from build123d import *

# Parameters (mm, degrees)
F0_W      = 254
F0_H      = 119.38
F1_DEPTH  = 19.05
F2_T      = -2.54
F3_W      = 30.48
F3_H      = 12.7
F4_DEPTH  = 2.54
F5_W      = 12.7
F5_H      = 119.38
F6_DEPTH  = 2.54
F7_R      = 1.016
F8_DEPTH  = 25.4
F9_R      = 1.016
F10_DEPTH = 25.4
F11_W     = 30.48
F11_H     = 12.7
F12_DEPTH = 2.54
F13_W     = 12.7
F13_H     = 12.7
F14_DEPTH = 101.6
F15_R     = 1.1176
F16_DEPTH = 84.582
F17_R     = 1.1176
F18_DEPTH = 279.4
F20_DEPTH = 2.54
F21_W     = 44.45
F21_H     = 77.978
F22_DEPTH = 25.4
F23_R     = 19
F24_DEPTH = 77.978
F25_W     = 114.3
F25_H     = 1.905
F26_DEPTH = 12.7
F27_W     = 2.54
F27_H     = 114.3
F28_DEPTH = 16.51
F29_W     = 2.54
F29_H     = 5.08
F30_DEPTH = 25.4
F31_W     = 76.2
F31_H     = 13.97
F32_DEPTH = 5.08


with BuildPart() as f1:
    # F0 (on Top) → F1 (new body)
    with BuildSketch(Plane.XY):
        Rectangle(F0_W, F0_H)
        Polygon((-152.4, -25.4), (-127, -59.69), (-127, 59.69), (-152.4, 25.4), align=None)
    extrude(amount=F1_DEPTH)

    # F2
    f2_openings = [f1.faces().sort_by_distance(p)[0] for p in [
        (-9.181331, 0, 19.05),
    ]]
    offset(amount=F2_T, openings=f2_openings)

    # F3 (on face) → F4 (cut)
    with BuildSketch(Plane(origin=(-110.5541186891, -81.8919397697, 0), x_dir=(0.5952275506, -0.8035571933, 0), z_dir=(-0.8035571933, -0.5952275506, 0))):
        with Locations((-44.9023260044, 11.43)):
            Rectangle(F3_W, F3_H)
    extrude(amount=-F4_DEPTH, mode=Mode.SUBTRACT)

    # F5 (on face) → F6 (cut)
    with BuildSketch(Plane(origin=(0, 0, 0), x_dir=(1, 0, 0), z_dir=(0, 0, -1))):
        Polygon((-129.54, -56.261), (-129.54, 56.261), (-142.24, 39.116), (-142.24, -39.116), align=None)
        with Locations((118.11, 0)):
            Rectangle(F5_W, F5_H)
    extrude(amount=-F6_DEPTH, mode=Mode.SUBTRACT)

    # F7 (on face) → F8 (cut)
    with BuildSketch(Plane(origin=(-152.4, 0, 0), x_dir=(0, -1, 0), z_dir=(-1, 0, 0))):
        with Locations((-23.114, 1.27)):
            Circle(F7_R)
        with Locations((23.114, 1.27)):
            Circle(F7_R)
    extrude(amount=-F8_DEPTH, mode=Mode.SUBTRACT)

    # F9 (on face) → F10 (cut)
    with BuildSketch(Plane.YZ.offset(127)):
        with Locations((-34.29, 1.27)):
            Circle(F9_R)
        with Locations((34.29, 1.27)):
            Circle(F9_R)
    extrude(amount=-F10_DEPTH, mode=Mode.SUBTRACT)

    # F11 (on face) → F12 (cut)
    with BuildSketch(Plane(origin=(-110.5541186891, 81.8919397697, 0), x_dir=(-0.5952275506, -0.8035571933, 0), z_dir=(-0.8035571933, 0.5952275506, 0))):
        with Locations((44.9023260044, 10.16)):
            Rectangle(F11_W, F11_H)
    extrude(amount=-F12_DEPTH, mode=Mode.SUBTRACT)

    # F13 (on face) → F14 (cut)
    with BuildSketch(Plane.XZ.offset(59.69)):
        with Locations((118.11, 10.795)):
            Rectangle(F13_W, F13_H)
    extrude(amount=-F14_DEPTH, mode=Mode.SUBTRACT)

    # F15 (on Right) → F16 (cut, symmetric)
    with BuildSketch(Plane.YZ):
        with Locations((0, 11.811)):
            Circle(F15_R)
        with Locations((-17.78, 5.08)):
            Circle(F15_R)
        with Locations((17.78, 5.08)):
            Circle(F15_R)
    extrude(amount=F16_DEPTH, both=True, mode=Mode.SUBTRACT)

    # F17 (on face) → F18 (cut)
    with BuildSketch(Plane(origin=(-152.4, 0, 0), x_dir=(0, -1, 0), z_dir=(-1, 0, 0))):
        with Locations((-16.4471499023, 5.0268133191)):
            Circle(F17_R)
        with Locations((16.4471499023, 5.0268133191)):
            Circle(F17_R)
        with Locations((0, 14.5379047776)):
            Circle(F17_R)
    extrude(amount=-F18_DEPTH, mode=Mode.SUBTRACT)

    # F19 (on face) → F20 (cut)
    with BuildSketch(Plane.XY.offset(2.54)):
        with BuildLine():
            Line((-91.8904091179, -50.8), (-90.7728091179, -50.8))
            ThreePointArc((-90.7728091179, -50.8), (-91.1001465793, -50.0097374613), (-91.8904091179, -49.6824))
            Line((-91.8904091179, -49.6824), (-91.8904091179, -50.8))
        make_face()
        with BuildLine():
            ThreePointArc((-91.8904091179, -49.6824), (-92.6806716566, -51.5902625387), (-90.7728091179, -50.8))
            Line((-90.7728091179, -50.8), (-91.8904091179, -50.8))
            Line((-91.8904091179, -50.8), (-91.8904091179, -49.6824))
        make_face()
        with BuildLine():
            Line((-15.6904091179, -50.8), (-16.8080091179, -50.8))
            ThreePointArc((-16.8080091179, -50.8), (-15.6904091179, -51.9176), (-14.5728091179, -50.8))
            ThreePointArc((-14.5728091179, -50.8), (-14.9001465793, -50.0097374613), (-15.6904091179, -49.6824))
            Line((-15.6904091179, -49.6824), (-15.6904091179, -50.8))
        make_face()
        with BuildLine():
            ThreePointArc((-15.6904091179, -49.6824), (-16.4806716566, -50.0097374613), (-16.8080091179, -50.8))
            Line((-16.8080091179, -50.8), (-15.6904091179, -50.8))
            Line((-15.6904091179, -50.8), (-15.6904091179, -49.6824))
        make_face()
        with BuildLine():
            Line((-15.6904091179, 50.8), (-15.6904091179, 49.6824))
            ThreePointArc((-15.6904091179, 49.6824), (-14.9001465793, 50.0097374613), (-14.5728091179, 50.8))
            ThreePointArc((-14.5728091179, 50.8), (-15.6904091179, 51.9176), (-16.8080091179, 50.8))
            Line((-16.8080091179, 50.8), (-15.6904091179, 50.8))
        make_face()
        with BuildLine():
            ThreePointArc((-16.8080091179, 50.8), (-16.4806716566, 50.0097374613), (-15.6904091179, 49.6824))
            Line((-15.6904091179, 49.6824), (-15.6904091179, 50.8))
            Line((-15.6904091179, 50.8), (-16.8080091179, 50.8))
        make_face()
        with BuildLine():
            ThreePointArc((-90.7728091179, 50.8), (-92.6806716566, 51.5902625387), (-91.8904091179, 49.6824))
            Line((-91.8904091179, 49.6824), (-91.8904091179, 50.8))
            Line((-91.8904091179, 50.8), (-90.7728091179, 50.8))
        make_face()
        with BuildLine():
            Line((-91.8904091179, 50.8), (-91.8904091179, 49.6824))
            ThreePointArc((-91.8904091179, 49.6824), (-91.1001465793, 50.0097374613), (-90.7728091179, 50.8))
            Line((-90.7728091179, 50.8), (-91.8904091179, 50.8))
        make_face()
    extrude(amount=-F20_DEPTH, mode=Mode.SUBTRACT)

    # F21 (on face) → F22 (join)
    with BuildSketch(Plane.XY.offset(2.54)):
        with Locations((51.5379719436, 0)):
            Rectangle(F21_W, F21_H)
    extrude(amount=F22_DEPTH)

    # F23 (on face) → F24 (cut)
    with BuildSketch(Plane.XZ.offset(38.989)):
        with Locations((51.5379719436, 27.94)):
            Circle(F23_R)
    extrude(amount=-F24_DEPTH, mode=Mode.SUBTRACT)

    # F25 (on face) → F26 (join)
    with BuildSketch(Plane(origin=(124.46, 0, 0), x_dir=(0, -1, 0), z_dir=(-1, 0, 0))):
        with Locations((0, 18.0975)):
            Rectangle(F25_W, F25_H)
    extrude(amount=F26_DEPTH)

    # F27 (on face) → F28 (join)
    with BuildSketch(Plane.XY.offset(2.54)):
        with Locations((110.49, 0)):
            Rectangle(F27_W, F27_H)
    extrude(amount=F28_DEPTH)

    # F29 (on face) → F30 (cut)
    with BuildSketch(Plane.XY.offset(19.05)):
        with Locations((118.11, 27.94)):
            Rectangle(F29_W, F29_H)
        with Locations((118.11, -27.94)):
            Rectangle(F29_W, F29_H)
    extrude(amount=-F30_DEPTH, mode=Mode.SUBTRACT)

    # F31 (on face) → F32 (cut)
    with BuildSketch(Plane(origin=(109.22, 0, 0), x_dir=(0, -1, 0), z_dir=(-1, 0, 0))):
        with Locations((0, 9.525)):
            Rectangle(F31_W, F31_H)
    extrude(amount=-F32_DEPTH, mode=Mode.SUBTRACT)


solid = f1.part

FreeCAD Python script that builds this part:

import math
import FreeCAD as App
import Part
import Sketcher
from FreeCAD import Vector
Q = App.Units.Quantity


def faces_at(feature, points):
    """Names of the faces that lie closest to the given points."""
    faces = feature.Shape.Faces
    near = lambda p: min(range(len(faces)), key=lambda i: faces[i].distToShape(Part.Vertex(*p))[0])
    return sorted({f"Face{near(p) + 1}" for p in points})

doc = App.newDocument("Part")
params = doc.addObject("Spreadsheet::Sheet", "Params")
for row, (alias, value) in enumerate([
    ("sketch1_width", "10 in"),
    ("sketch1_height", "2 in"),
    ("sketch1_height2", "4.7 in"),
    ("pad1_length", "0.75 in"),
    ("thickness_wall", "0.1 in"),
    ("sketch2_width", "1.2 in"),
    ("sketch2_height", "0.5 in"),
    ("pocket1_length", "0.1 in"),
    ("sketch3_width", "0.5 in"),
    ("sketch3_height", "4.7 in"),
    ("sketch3_height2", "4.43 in"),
    ("sketch3_height3", "3.08 in"),
    ("pocket2_length", "0.1 in"),
    ("sketch4_diameter", "0.08 in"),
    ("pocket3_length", "1 in"),
    ("sketch5_diameter", "0.08 in"),
    ("pocket4_length", "1 in"),
    ("sketch6_width", "1.2 in"),
    ("sketch6_height", "0.5 in"),
    ("pocket5_length", "0.1 in"),
    ("sketch7_width", "0.5 in"),
    ("pocket6_length", "4 in"),
    ("sketch8_diameter", "0.088 in"),
    ("pocket7_length", "6.66 in"),
    ("sketch9_diameter", "0.088 in"),
    ("pocket8_length", "11 in"),
    ("sketch10_radius", "0.044 in"),
    ("pocket9_length", "0.1 in"),
    ("sketch11_width", "1.75 in"),
    ("sketch11_height", "3.07 in"),
    ("pad2_length", "1 in"),
    ("pocket10_length", "3.07 in"),
    ("sketch13_width", "4.5 in"),
    ("sketch13_height", "0.075 in"),
    ("pad3_length", "0.5 in"),
    ("sketch14_width", "0.1 in"),
    ("sketch14_height", "4.5 in"),
    ("pad4_length", "0.65 in"),
    ("sketch15_width", "0.1 in"),
    ("sketch15_height", "0.2 in"),
    ("pocket11_length", "1 in"),
    ("sketch16_width", "3 in"),
    ("sketch16_height", "0.55 in"),
    ("pocket12_length", "0.2 in"),
], start=1):
    params.set(f"A{row}", alias)
    params.set(f"B{row}", "=" + value)
    params.setAlias(f"B{row}", alias)

body = doc.addObject("PartDesign::Body", "Body")

# Sketch on XY plane
sketch1 = doc.addObject("Sketcher::SketchObject", "Sketch")
body.addObject(sketch1)
sketch1.AttachmentSupport = (doc.XY_Plane, [""])
sketch1.MapMode = "FlatFace"
sketch1.addGeometry([
    Part.LineSegment(Vector(-127, -59.69, 0), Vector(127, -59.69, 0)),  # 0
    Part.LineSegment(Vector(127, -59.69, 0), Vector(127, 59.69, 0)),  # 1
    Part.LineSegment(Vector(127, 59.69, 0), Vector(-127, 59.69, 0)),  # 2
    Part.LineSegment(Vector(-127, 59.69, 0), Vector(-152.4, 25.4, 0)),  # 3
    Part.LineSegment(Vector(-152.4, 25.4, 0), Vector(-152.4, -25.4, 0)),  # 4
    Part.LineSegment(Vector(-152.4, -25.4, 0), Vector(-127, -59.69, 0)),  # 5
], False)
sketch1.addConstraint([
    Sketcher.Constraint("Coincident", 0, 2, 1, 1),
    Sketcher.Constraint("Coincident", 1, 2, 2, 1),
    Sketcher.Constraint("Coincident", 2, 2, 3, 1),
    Sketcher.Constraint("Coincident", 3, 2, 4, 1),
    Sketcher.Constraint("Coincident", 4, 2, 5, 1),
    Sketcher.Constraint("Coincident", 5, 2, 0, 1),
    Sketcher.Constraint("Horizontal", 0),
    Sketcher.Constraint("Vertical", 1),
    Sketcher.Constraint("Horizontal", 2),
    Sketcher.Constraint("Vertical", 4),
    Sketcher.Constraint("Symmetric", 0, 2, 2, 2, -1, 1),
    Sketcher.Constraint("Vertical", 2, 2, 5, 2),
    Sketcher.Constraint("Equal", 3, 5),
    Sketcher.Constraint("DistanceX", 0, 1, 0, 2, Q("10 in")),
    Sketcher.Constraint("DistanceY", 4, 2, 4, 1, Q("2 in")),
    Sketcher.Constraint("DistanceY", 1, 1, 1, 2, Q("4.7 in")),
    Sketcher.Constraint("DistanceX", 3, 2, -1, 1, Q("6 in")),
])
sketch1.setExpression("Constraints[13]", "Params.sketch1_width")
sketch1.setExpression("Constraints[14]", "Params.sketch1_height")
sketch1.setExpression("Constraints[15]", "Params.sketch1_height2")
pad1 = doc.addObject("PartDesign::Pad", "Pad")
body.addObject(pad1)
pad1.Profile = sketch1
pad1.setExpression("Length", "Params.pad1_length")
doc.recompute()

thickness = doc.addObject("PartDesign::Thickness", "Thickness")
body.addObject(thickness)
thickness.Base = (pad1, faces_at(pad1, [(-12.7, 0, 19.05)]))
thickness.setExpression("Value", "Params.thickness_wall")
thickness.Reversed = True
thickness.Join = "Arc"

# Sketch on an angled plane
sketch2 = doc.addObject("Sketcher::SketchObject", "Sketch001")
body.addObject(sketch2)
sketch2.Placement = App.Placement(Vector(-110.554119, -81.89194, 0), App.Rotation(Vector(0.595227551, -0.803557193, 0), Vector(0, 0, 1), Vector(-0.803557193, -0.595227551, 0), "ZXY"))
sketch2.addGeometry([
    Part.LineSegment(Vector(-60.142326, 17.78, 0), Vector(-60.142326, 5.08, 0)),
    Part.LineSegment(Vector(-60.142326, 5.08, 0), Vector(-29.662326, 5.08, 0)),
    Part.LineSegment(Vector(-29.662326, 5.08, 0), Vector(-29.662326, 17.78, 0)),
    Part.LineSegment(Vector(-29.662326, 17.78, 0), Vector(-60.142326, 17.78, 0)),
], False)
sketch2.addConstraint([
    Sketcher.Constraint("Coincident", 0, 2, 1, 1),
    Sketcher.Constraint("Coincident", 1, 2, 2, 1),
    Sketcher.Constraint("Coincident", 2, 2, 3, 1),
    Sketcher.Constraint("Coincident", 3, 2, 0, 1),
    Sketcher.Constraint("Vertical", 0),
    Sketcher.Constraint("Horizontal", 1),
    Sketcher.Constraint("Vertical", 2),
    Sketcher.Constraint("Horizontal", 3),
    Sketcher.Constraint("DistanceX", 1, 1, 1, 2, Q("1.2 in")),
    Sketcher.Constraint("DistanceY", 0, 2, 0, 1, Q("0.5 in")),
    Sketcher.Constraint("DistanceY", -1, 1, 0, 2, Q("0.2 in")),
    Sketcher.Constraint("DistanceX", 0, 2, -1, 1, 60.142326),
])
sketch2.setExpression("Constraints[8]", "Params.sketch2_width")
sketch2.setExpression("Constraints[9]", "Params.sketch2_height")
pocket1 = doc.addObject("PartDesign::Pocket", "Pocket")
body.addObject(pocket1)
pocket1.Profile = sketch2
pocket1.setExpression("Length", "Params.pocket1_length")

# Sketch on XY plane
sketch3 = doc.addObject("Sketcher::SketchObject", "Sketch002")
body.addObject(sketch3)
sketch3.AttachmentSupport = (doc.XY_Plane, [""])
sketch3.MapMode = "FlatFace"
sketch3.addGeometry([
    Part.LineSegment(Vector(-129.54, 56.261, 0), Vector(-129.54, -56.261, 0)),  # 0
    Part.LineSegment(Vector(-129.54, -56.261, 0), Vector(-142.24, -39.116, 0)),  # 1
    Part.LineSegment(Vector(-142.24, -39.116, 0), Vector(-142.24, 39.116, 0)),  # 2
    Part.LineSegment(Vector(-142.24, 39.116, 0), Vector(-129.54, 56.261, 0)),  # 3
    Part.LineSegment(Vector(111.76, -59.69, 0), Vector(111.76, 59.69, 0)),  # 4
    Part.LineSegment(Vector(111.76, 59.69, 0), Vector(124.46, 59.69, 0)),  # 5
    Part.LineSegment(Vector(124.46, 59.69, 0), Vector(124.46, -59.69, 0)),  # 6
    Part.LineSegment(Vector(124.46, -59.69, 0), Vector(111.76, -59.69, 0)),  # 7
], False)
sketch3.addConstraint([
    Sketcher.Constraint("Coincident", 0, 2, 1, 1),
    Sketcher.Constraint("Coincident", 1, 2, 2, 1),
    Sketcher.Constraint("Coincident", 2, 2, 3, 1),
    Sketcher.Constraint("Coincident", 3, 2, 0, 1),
    Sketcher.Constraint("Coincident", 4, 2, 5, 1),
    Sketcher.Constraint("Coincident", 5, 2, 6, 1),
    Sketcher.Constraint("Coincident", 6, 2, 7, 1),
    Sketcher.Constraint("Coincident", 7, 2, 4, 1),
    Sketcher.Constraint("Vertical", 0),
    Sketcher.Constraint("Vertical", 2),
    Sketcher.Constraint("Vertical", 4),
    Sketcher.Constraint("Horizontal", 5),
    Sketcher.Constraint("Vertical", 6),
    Sketcher.Constraint("Horizontal", 7),
    Sketcher.Constraint("Equal", 1, 3),
    Sketcher.Constraint("DistanceX", 5, 1, 5, 2, Q("0.5 in")),
    Sketcher.Constraint("DistanceY", 4, 1, 4, 2, Q("4.7 in")),
    Sketcher.Constraint("DistanceX", 2, 2, 4, 2, Q("10 in")),
    Sketcher.Constraint("DistanceX", 3, 2, 5, 2, Q("10 in")),
    Sketcher.Constraint("DistanceY", 0, 2, 0, 1, Q("4.43 in")),
    Sketcher.Constraint("DistanceY", 2, 1, 2, 2, Q("3.08 in")),
    Sketcher.Constraint("DistanceX", 0, 2, -1, 1, Q("5.1 in")),
    Sketcher.Constraint("DistanceY", 1, 2, -1, 1, Q("1.54 in")),
    Sketcher.Constraint("DistanceY", -1, 1, 4, 2, Q("2.35 in")),
])
sketch3.setExpression("Constraints[15]", "Params.sketch3_width")
sketch3.setExpression("Constraints[16]", "Params.sketch3_height")
sketch3.setExpression("Constraints[19]", "Params.sketch3_height2")
sketch3.setExpression("Constraints[20]", "Params.sketch3_height3")
pocket2 = doc.addObject("PartDesign::Pocket", "Pocket001")
body.addObject(pocket2)
pocket2.Profile = sketch3
pocket2.setExpression("Length", "Params.pocket2_length")
pocket2.Reversed = True

# Sketch on YZ plane
sketch4 = doc.addObject("Sketcher::SketchObject", "Sketch003")
body.addObject(sketch4)
sketch4.AttachmentSupport = (doc.YZ_Plane, [""])
sketch4.MapMode = "FlatFace"
sketch4.AttachmentOffset = App.Placement(Vector(0, 0, -6 * 25.4), App.Rotation())
sketch4.addGeometry([
    Part.Circle(Vector(23.114, 1.27, 0), Vector(0, 0, 1), 1.016),
    Part.Circle(Vector(-23.114, 1.27, 0), Vector(0, 0, 1), 1.016),
], False)
sketch4.addConstraint([
    Sketcher.Constraint("Equal", 0, 1),
    Sketcher.Constraint("Symmetric", 0, 3, 1, 3, -2),
    Sketcher.Constraint("Diameter", 0, Q("0.08 in")),
    Sketcher.Constraint("DistanceX", -1, 1, 0, 3, Q("0.91 in")),
    Sketcher.Constraint("DistanceY", -1, 1, 0, 3, Q("0.05 in")),
])
sketch4.setExpression("Constraints[2]", "Params.sketch4_diameter")
pocket3 = doc.addObject("PartDesign::Pocket", "Pocket002")
body.addObject(pocket3)
pocket3.Profile = sketch4
pocket3.setExpression("Length", "Params.pocket3_length")
pocket3.Reversed = True

# Sketch on YZ plane
sketch5 = doc.addObject("Sketcher::SketchObject", "Sketch004")
body.addObject(sketch5)
sketch5.AttachmentSupport = (doc.YZ_Plane, [""])
sketch5.MapMode = "FlatFace"
sketch5.AttachmentOffset = App.Placement(Vector(0, 0, 5 * 25.4), App.Rotation())
sketch5.addGeometry([
    Part.Circle(Vector(-34.29, 1.27, 0), Vector(0, 0, 1), 1.016),
    Part.Circle(Vector(34.29, 1.27, 0), Vector(0, 0, 1), 1.016),
], False)
sketch5.addConstraint([
    Sketcher.Constraint("Equal", 0, 1),
    Sketcher.Constraint("Symmetric", 0, 3, 1, 3, -2),
    Sketcher.Constraint("Diameter", 0, Q("0.08 in")),
    Sketcher.Constraint("DistanceX", 0, 3, 1, 3, Q("2.7 in")),
    Sketcher.Constraint("DistanceY", -1, 1, 0, 3, Q("0.05 in")),
])
sketch5.setExpression("Constraints[2]", "Params.sketch5_diameter")
pocket4 = doc.addObject("PartDesign::Pocket", "Pocket003")
body.addObject(pocket4)
pocket4.Profile = sketch5
pocket4.setExpression("Length", "Params.pocket4_length")

# Sketch on an angled plane
sketch6 = doc.addObject("Sketcher::SketchObject", "Sketch005")
body.addObject(sketch6)
sketch6.Placement = App.Placement(Vector(-110.554119, 81.89194, 0), App.Rotation(Vector(-0.595227551, -0.803557193, 0), Vector(0, 0, 1), Vector(-0.803557193, 0.595227551, 0), "ZXY"))
sketch6.addGeometry([
    Part.LineSegment(Vector(29.662326, 16.51, 0), Vector(29.662326, 3.81, 0)),
    Part.LineSegment(Vector(29.662326, 3.81, 0), Vector(60.142326, 3.81, 0)),
    Part.LineSegment(Vector(60.142326, 3.81, 0), Vector(60.142326, 16.51, 0)),
    Part.LineSegment(Vector(60.142326, 16.51, 0), Vector(29.662326, 16.51, 0)),
], False)
sketch6.addConstraint([
    Sketcher.Constraint("Coincident", 0, 2, 1, 1),
    Sketcher.Constraint("Coincident", 1, 2, 2, 1),
    Sketcher.Constraint("Coincident", 2, 2, 3, 1),
    Sketcher.Constraint("Coincident", 3, 2, 0, 1),
    Sketcher.Constraint("Vertical", 0),
    Sketcher.Constraint("Horizontal", 1),
    Sketcher.Constraint("Vertical", 2),
    Sketcher.Constraint("Horizontal", 3),
    Sketcher.Constraint("DistanceX", 1, 1, 1, 2, Q("1.2 in")),
    Sketcher.Constraint("DistanceY", 0, 2, 0, 1, Q("0.5 in")),
    Sketcher.Constraint("DistanceY", -1, 1, 0, 2, Q("0.15 in")),
    Sketcher.Constraint("DistanceX", -1, 1, 0, 2, 29.662326),
])
sketch6.setExpression("Constraints[8]", "Params.sketch6_width")
sketch6.setExpression("Constraints[9]", "Params.sketch6_height")
pocket5 = doc.addObject("PartDesign::Pocket", "Pocket004")
body.addObject(pocket5)
pocket5.Profile = sketch6
pocket5.setExpression("Length", "Params.pocket5_length")

# Sketch on XZ plane
sketch7 = doc.addObject("Sketcher::SketchObject", "Sketch006")
body.addObject(sketch7)
sketch7.AttachmentSupport = (doc.XZ_Plane, [""])
sketch7.MapMode = "FlatFace"
sketch7.AttachmentOffset = App.Placement(Vector(0, 0, 2.35 * 25.4), App.Rotation())
sketch7.addGeometry([
    Part.LineSegment(Vector(111.76, 17.145, 0), Vector(111.76, 4.445, 0)),
    Part.LineSegment(Vector(111.76, 4.445, 0), Vector(124.46, 4.445, 0)),
    Part.LineSegment(Vector(124.46, 4.445, 0), Vector(124.46, 17.145, 0)),
    Part.LineSegment(Vector(124.46, 17.145, 0), Vector(111.76, 17.145, 0)),
], False)
sketch7.addConstraint([
    Sketcher.Constraint("Coincident", 0, 2, 1, 1),
    Sketcher.Constraint("Coincident", 1, 2, 2, 1),
    Sketcher.Constraint("Coincident", 2, 2, 3, 1),
    Sketcher.Constraint("Coincident", 3, 2, 0, 1),
    Sketcher.Constraint("Vertical", 0),
    Sketcher.Constraint("Horizontal", 1),
    Sketcher.Constraint("Vertical", 2),
    Sketcher.Constraint("Horizontal", 3),
    Sketcher.Constraint("Equal", 3, 0),
    Sketcher.Constraint("DistanceX", 1, 1, 1, 2, Q("0.5 in")),
    Sketcher.Constraint("DistanceX", -1, 1, 0, 2, Q("4.4 in")),
    Sketcher.Constraint("DistanceY", -1, 1, 0, 2, Q("0.175 in")),
])
sketch7.setExpression("Constraints[9]", "Params.sketch7_width")
pocket6 = doc.addObject("PartDesign::Pocket", "Pocket005")
body.addObject(pocket6)
pocket6.Profile = sketch7
pocket6.setExpression("Length", "Params.pocket6_length")

# Sketch on YZ plane
sketch8 = doc.addObject("Sketcher::SketchObject", "Sketch007")
body.addObject(sketch8)
sketch8.AttachmentSupport = (doc.YZ_Plane, [""])
sketch8.MapMode = "FlatFace"
sketch8.addGeometry([
    Part.Circle(Vector(0, 11.811, 0), Vector(0, 0, 1), 1.1176),
    Part.Circle(Vector(-17.78, 5.08, 0), Vector(0, 0, 1), 1.1176),
    Part.Circle(Vector(17.78, 5.08, 0), Vector(0, 0, 1), 1.1176),
], False)
sketch8.addConstraint([
    Sketcher.Constraint("Equal", 0, 1),
    Sketcher.Constraint("Equal", 1, 2),
    Sketcher.Constraint("Symmetric", 1, 3, 2, 3, -2),
    Sketcher.Constraint("PointOnObject", 0, 3, -2),
    Sketcher.Constraint("Diameter", 0, Q("0.088 in")),
    Sketcher.Constraint("DistanceX", 1, 3, -1, 1, Q("0.7 in")),
    Sketcher.Constraint("DistanceY", -1, 1, 1, 3, Q("0.2 in")),
    Sketcher.Constraint("DistanceY", -1, 1, 0, 3, Q("0.465 in")),
])
sketch8.setExpression("Constraints[4]", "Params.sketch8_diameter")
pocket7 = doc.addObject("PartDesign::Pocket", "Pocket006")
body.addObject(pocket7)
pocket7.Profile = sketch8
pocket7.setExpression("Length", "Params.pocket7_length")
pocket7.Midplane = True

# Sketch on YZ plane
sketch9 = doc.addObject("Sketcher::SketchObject", "Sketch008")
body.addObject(sketch9)
sketch9.AttachmentSupport = (doc.YZ_Plane, [""])
sketch9.MapMode = "FlatFace"
sketch9.AttachmentOffset = App.Placement(Vector(0, 0, -6 * 25.4), App.Rotation())
sketch9.addGeometry([
    Part.Circle(Vector(16.44715, 5.026813, 0), Vector(0, 0, 1), 1.1176),
    Part.Circle(Vector(-16.44715, 5.026813, 0), Vector(0, 0, 1), 1.1176),
    Part.Circle(Vector(0, 14.537905, 0), Vector(0, 0, 1), 1.1176),
], False)
sketch9.addConstraint([
    Sketcher.Constraint("Equal", 0, 1),
    Sketcher.Constraint("Equal", 1, 2),
    Sketcher.Constraint("Symmetric", 0, 3, 1, 3, -2),
    Sketcher.Constraint("PointOnObject", 2, 3, -2),
    Sketcher.Constraint("Diameter", 0, Q("0.088 in")),
    Sketcher.Constraint("DistanceX", 1, 3, 0, 3, 32.8943),
    Sketcher.Constraint("DistanceY", 0, 3, 2, 3, 9.511091),
    Sketcher.Constraint("DistanceY", -1, 1, 0, 3, 5.026813),
])
sketch9.setExpression("Constraints[4]", "Params.sketch9_diameter")
pocket8 = doc.addObject("PartDesign::Pocket", "Pocket007")
body.addObject(pocket8)
pocket8.Profile = sketch9
pocket8.setExpression("Length", "Params.pocket8_length")
pocket8.Reversed = True

# Sketch on XY plane
sketch10 = doc.addObject("Sketcher::SketchObject", "Sketch009")
body.addObject(sketch10)
sketch10.AttachmentSupport = (doc.XY_Plane, [""])
sketch10.MapMode = "FlatFace"
sketch10.AttachmentOffset = App.Placement(Vector(0, 0, 0.1 * 25.4), App.Rotation())
sketch10.addGeometry([
    Part.ArcOfCircle(Part.Circle(Vector(-91.890409, -50.8, 0), Vector(0, 0, 1), 1.1176), math.radians(0), math.radians(90)),  # 0
    Part.ArcOfCircle(Part.Circle(Vector(-91.890409, -50.8, 0), Vector(0, 0, 1), 1.1176), math.radians(90), math.radians(360)),  # 1
    Part.ArcOfCircle(Part.Circle(Vector(-15.690409, -50.8, 0), Vector(0, 0, 1), 1.1176), math.radians(180), math.radians(360)),  # 2
    Part.ArcOfCircle(Part.Circle(Vector(-15.690409, -50.8, 0), Vector(0, 0, 1), 1.1176), math.radians(0), math.radians(90)),  # 3
    Part.ArcOfCircle(Part.Circle(Vector(-15.690409, -50.8, 0), Vector(0, 0, 1), 1.1176), math.radians(90), math.radians(180)),  # 4
    Part.ArcOfCircle(Part.Circle(Vector(-15.690409, 50.8, 0), Vector(0, 0, 1), 1.1176), math.radians(-90), math.radians(0)),  # 5
    Part.ArcOfCircle(Part.Circle(Vector(-15.690409, 50.8, 0), Vector(0, 0, 1), 1.1176), math.radians(0), math.radians(180)),  # 6
    Part.ArcOfCircle(Part.Circle(Vector(-15.690409, 50.8, 0), Vector(0, 0, 1), 1.1176), math.radians(180), math.radians(270)),  # 7
    Part.ArcOfCircle(Part.Circle(Vector(-91.890409, 50.8, 0), Vector(0, 0, 1), 1.1176), math.radians(0), math.radians(270)),  # 8
    Part.ArcOfCircle(Part.Circle(Vector(-91.890409, 50.8, 0), Vector(0, 0, 1), 1.1176), math.radians(-90), math.radians(0)),  # 9
], False)
sketch10.addConstraint([
    Sketcher.Constraint("Tangent", 0, 1, 1, 2),
    Sketcher.Constraint("Coincident", 1, 1, 0, 2),
    Sketcher.Constraint("Tangent", 2, 2, 3, 1),
    Sketcher.Constraint("Tangent", 3, 2, 4, 1),
    Sketcher.Constraint("Tangent", 4, 2, 2, 1),
    Sketcher.Constraint("Tangent", 5, 2, 6, 1),
    Sketcher.Constraint("Tangent", 6, 2, 7, 1),
    Sketcher.Constraint("Tangent", 7, 2, 5, 1),
    Sketcher.Constraint("Tangent", 8, 1, 9, 2),
    Sketcher.Constraint("Coincident", 9, 1, 8, 2),
    Sketcher.Constraint("Equal", 1, 2),
    Sketcher.Constraint("Equal", 4, 5),
    Sketcher.Constraint("Equal", 7, 8),
    Sketcher.Constraint("Symmetric", 2, 3, 5, 3, -1),
    Sketcher.Constraint("Symmetric", 0, 3, 8, 3, -1),
    Sketcher.Constraint("Horizontal", 1, 3, 2, 3),
    Sketcher.Constraint("Horizontal", 4, 3, 0, 1),
    Sketcher.Constraint("Horizontal", 0, 1, 2, 2),
    Sketcher.Constraint("Horizontal", 2, 2, 4, 2),
    Sketcher.Constraint("Horizontal", 9, 3, 5, 2),
    Sketcher.Constraint("Horizontal", 5, 2, 6, 2),
    Sketcher.Constraint("Horizontal", 6, 2, 8, 1),
    Sketcher.Constraint("Vertical", 9, 3, 1, 1),
    Sketcher.Constraint("Vertical", 7, 3, 3, 2),
    Sketcher.Constraint("Vertical", 3, 2, 7, 2),
    Sketcher.Constraint("Vertical", 1, 1, 9, 1),
    Sketcher.Constraint("DistanceY", 0, 3, -1, 1, Q("2 in")),
    Sketcher.Constraint("Radius", 0, Q("0.044 in")),
    Sketcher.Constraint("DistanceX", 0, 3, 2, 3, Q("3 in")),
    Sketcher.Constraint("DistanceX", 0, 3, -1, 1, 91.890409),
])
sketch10.setExpression("Constraints[27]", "Params.sketch10_radius")
pocket9 = doc.addObject("PartDesign::Pocket", "Pocket008")
body.addObject(pocket9)
pocket9.Profile = sketch10
pocket9.setExpression("Length", "Params.pocket9_length")

# Sketch on XY plane
sketch11 = doc.addObject("Sketcher::SketchObject", "Sketch010")
body.addObject(sketch11)
sketch11.AttachmentSupport = (doc.XY_Plane, [""])
sketch11.MapMode = "FlatFace"
sketch11.AttachmentOffset = App.Placement(Vector(0, 0, 0.1 * 25.4), App.Rotation())
sketch11.addGeometry([
    Part.LineSegment(Vector(29.312972, 38.989, 0), Vector(29.312972, -38.989, 0)),
    Part.LineSegment(Vector(29.312972, -38.989, 0), Vector(73.762972, -38.989, 0)),
    Part.LineSegment(Vector(73.762972, -38.989, 0), Vector(73.762972, 38.989, 0)),
    Part.LineSegment(Vector(73.762972, 38.989, 0), Vector(29.312972, 38.989, 0)),
], False)
sketch11.addConstraint([
    Sketcher.Constraint("Coincident", 0, 2, 1, 1),
    Sketcher.Constraint("Coincident", 1, 2, 2, 1),
    Sketcher.Constraint("Coincident", 2, 2, 3, 1),
    Sketcher.Constraint("Coincident", 3, 2, 0, 1),
    Sketcher.Constraint("Vertical", 0),
    Sketcher.Constraint("Horizontal", 1),
    Sketcher.Constraint("Vertical", 2),
    Sketcher.Constraint("Horizontal", 3),
    Sketcher.Constraint("DistanceX", 1, 1, 1, 2, Q("1.75 in")),
    Sketcher.Constraint("DistanceY", 0, 2, 0, 1, Q("3.07 in")),
    Sketcher.Constraint("DistanceY", 0, 2, -1, 1, Q("1.535 in")),
    Sketcher.Constraint("DistanceX", -1, 1, 0, 2, 29.312972),
])
sketch11.setExpression("Constraints[8]", "Params.sketch11_width")
sketch11.setExpression("Constraints[9]", "Params.sketch11_height")
pad2 = doc.addObject("PartDesign::Pad", "Pad001")
body.addObject(pad2)
pad2.Profile = sketch11
pad2.setExpression("Length", "Params.pad2_length")

# Sketch on XZ plane
sketch12 = doc.addObject("Sketcher::SketchObject", "Sketch011")
body.addObject(sketch12)
sketch12.AttachmentSupport = (doc.XZ_Plane, [""])
sketch12.MapMode = "FlatFace"
sketch12.AttachmentOffset = App.Placement(Vector(0, 0, 1.535 * 25.4), App.Rotation())
sketch12.addGeometry(Part.Circle(Vector(51.537972, 27.94, 0), Vector(0, 0, 1), 19), False)
sketch12.addConstraint([
    Sketcher.Constraint("DistanceY", -1, 1, 0, 3, Q("1.1 in")),
    Sketcher.Constraint("Diameter", 0, 38.0),
    Sketcher.Constraint("DistanceX", -1, 1, 0, 3, 51.537972),
])
pocket10 = doc.addObject("PartDesign::Pocket", "Pocket009")
body.addObject(pocket10)
pocket10.Profile = sketch12
pocket10.setExpression("Length", "Params.pocket10_length")

# Sketch on YZ plane
sketch13 = doc.addObject("Sketcher::SketchObject", "Sketch012")
body.addObject(sketch13)
sketch13.AttachmentSupport = (doc.YZ_Plane, [""])
sketch13.MapMode = "FlatFace"
sketch13.AttachmentOffset = App.Placement(Vector(0, 0, 4.9 * 25.4), App.Rotation())
sketch13.addGeometry([
    Part.LineSegment(Vector(57.15, 19.05, 0), Vector(57.15, 17.145, 0)),
    Part.LineSegment(Vector(57.15, 17.145, 0), Vector(-57.15, 17.145, 0)),
    Part.LineSegment(Vector(-57.15, 17.145, 0), Vector(-57.15, 19.05, 0)),
    Part.LineSegment(Vector(-57.15, 19.05, 0), Vector(57.15, 19.05, 0)),
], False)
sketch13.addConstraint([
    Sketcher.Constraint("Coincident", 0, 2, 1, 1),
    Sketcher.Constraint("Coincident", 1, 2, 2, 1),
    Sketcher.Constraint("Coincident", 2, 2, 3, 1),
    Sketcher.Constraint("Coincident", 3, 2, 0, 1),
    Sketcher.Constraint("Vertical", 0),
    Sketcher.Constraint("Horizontal", 1),
    Sketcher.Constraint("Vertical", 2),
    Sketcher.Constraint("Horizontal", 3),
    Sketcher.Constraint("DistanceX", 1, 2, 1, 1, Q("4.5 in")),
    Sketcher.Constraint("DistanceY", 0, 2, 0, 1, Q("0.075 in")),
    Sketcher.Constraint("DistanceX", -1, 1, 0, 2, Q("2.25 in")),
    Sketcher.Constraint("DistanceY", -1, 1, 2, 2, Q("0.75 in")),
])
sketch13.setExpression("Constraints[8]", "Params.sketch13_width")
sketch13.setExpression("Constraints[9]", "Params.sketch13_height")
pad3 = doc.addObject("PartDesign::Pad", "Pad002")
body.addObject(pad3)
pad3.Profile = sketch13
pad3.setExpression("Length", "Params.pad3_length")
pad3.Reversed = True

# Sketch on XY plane
sketch14 = doc.addObject("Sketcher::SketchObject", "Sketch013")
body.addObject(sketch14)
sketch14.AttachmentSupport = (doc.XY_Plane, [""])
sketch14.MapMode = "FlatFace"
sketch14.AttachmentOffset = App.Placement(Vector(0, 0, 0.1 * 25.4), App.Rotation())
sketch14.addGeometry([
    Part.LineSegment(Vector(109.22, 57.15, 0), Vector(109.22, -57.15, 0)),
    Part.LineSegment(Vector(109.22, -57.15, 0), Vector(111.76, -57.15, 0)),
    Part.LineSegment(Vector(111.76, -57.15, 0), Vector(111.76, 57.15, 0)),
    Part.LineSegment(Vector(111.76, 57.15, 0), Vector(109.22, 57.15, 0)),
], False)
sketch14.addConstraint([
    Sketcher.Constraint("Coincident", 0, 2, 1, 1),
    Sketcher.Constraint("Coincident", 1, 2, 2, 1),
    Sketcher.Constraint("Coincident", 2, 2, 3, 1),
    Sketcher.Constraint("Coincident", 3, 2, 0, 1),
    Sketcher.Constraint("Vertical", 0),
    Sketcher.Constraint("Horizontal", 1),
    Sketcher.Constraint("Vertical", 2),
    Sketcher.Constraint("Horizontal", 3),
    Sketcher.Constraint("DistanceX", 1, 1, 1, 2, Q("0.1 in")),
    Sketcher.Constraint("DistanceY", 0, 2, 0, 1, Q("4.5 in")),
    Sketcher.Constraint("DistanceX", -1, 1, 0, 2, Q("4.3 in")),
    Sketcher.Constraint("DistanceY", 0, 2, -1, 1, Q("2.25 in")),
])
sketch14.setExpression("Constraints[8]", "Params.sketch14_width")
sketch14.setExpression("Constraints[9]", "Params.sketch14_height")
pad4 = doc.addObject("PartDesign::Pad", "Pad003")
body.addObject(pad4)
pad4.Profile = sketch14
pad4.setExpression("Length", "Params.pad4_length")

# Sketch on XY plane
sketch15 = doc.addObject("Sketcher::SketchObject", "Sketch014")
body.addObject(sketch15)
sketch15.AttachmentSupport = (doc.XY_Plane, [""])
sketch15.MapMode = "FlatFace"
sketch15.AttachmentOffset = App.Placement(Vector(0, 0, 0.75 * 25.4), App.Rotation())
sketch15.addGeometry([
    Part.LineSegment(Vector(116.84, 30.48, 0), Vector(116.84, 25.4, 0)),  # 0
    Part.LineSegment(Vector(116.84, 25.4, 0), Vector(119.38, 25.4, 0)),  # 1
    Part.LineSegment(Vector(119.38, 25.4, 0), Vector(119.38, 30.48, 0)),  # 2
    Part.LineSegment(Vector(119.38, 30.48, 0), Vector(116.84, 30.48, 0)),  # 3
    Part.LineSegment(Vector(116.84, -25.4, 0), Vector(116.84, -30.48, 0)),  # 4
    Part.LineSegment(Vector(116.84, -30.48, 0), Vector(119.38, -30.48, 0)),  # 5
    Part.LineSegment(Vector(119.38, -30.48, 0), Vector(119.38, -25.4, 0)),  # 6
    Part.LineSegment(Vector(119.38, -25.4, 0), Vector(116.84, -25.4, 0)),  # 7
], False)
sketch15.addConstraint([
    Sketcher.Constraint("Coincident", 0, 2, 1, 1),
    Sketcher.Constraint("Coincident", 1, 2, 2, 1),
    Sketcher.Constraint("Coincident", 2, 2, 3, 1),
    Sketcher.Constraint("Coincident", 3, 2, 0, 1),
    Sketcher.Constraint("Coincident", 4, 2, 5, 1),
    Sketcher.Constraint("Coincident", 5, 2, 6, 1),
    Sketcher.Constraint("Coincident", 6, 2, 7, 1),
    Sketcher.Constraint("Coincident", 7, 2, 4, 1),
    Sketcher.Constraint("Vertical", 0),
    Sketcher.Constraint("Horizontal", 1),
    Sketcher.Constraint("Vertical", 2),
    Sketcher.Constraint("Horizontal", 3),
    Sketcher.Constraint("Vertical", 4),
    Sketcher.Constraint("Horizontal", 5),
    Sketcher.Constraint("Vertical", 6),
    Sketcher.Constraint("Horizontal", 7),
    Sketcher.Constraint("Symmetric", 3, 2, 4, 2, -1),
    Sketcher.Constraint("Symmetric", 1, 2, 6, 2, -1),
    Sketcher.Constraint("DistanceX", 1, 1, 1, 2, Q("0.1 in")),
    Sketcher.Constraint("DistanceY", 0, 2, 0, 1, Q("0.2 in")),
    Sketcher.Constraint("DistanceY", -1, 1, 0, 2, Q("1 in")),
    Sketcher.Constraint("DistanceX", -1, 1, 0, 2, Q("4.6 in")),
])
sketch15.setExpression("Constraints[18]", "Params.sketch15_width")
sketch15.setExpression("Constraints[19]", "Params.sketch15_height")
pocket11 = doc.addObject("PartDesign::Pocket", "Pocket010")
body.addObject(pocket11)
pocket11.Profile = sketch15
pocket11.setExpression("Length", "Params.pocket11_length")

# Sketch on YZ plane
sketch16 = doc.addObject("Sketcher::SketchObject", "Sketch015")
body.addObject(sketch16)
sketch16.AttachmentSupport = (doc.YZ_Plane, [""])
sketch16.MapMode = "FlatFace"
sketch16.AttachmentOffset = App.Placement(Vector(0, 0, 4.3 * 25.4), App.Rotation())
sketch16.addGeometry([
    Part.LineSegment(Vector(38.1, 16.51, 0), Vector(38.1, 2.54, 0)),
    Part.LineSegment(Vector(38.1, 2.54, 0), Vector(-38.1, 2.54, 0)),
    Part.LineSegment(Vector(-38.1, 2.54, 0), Vector(-38.1, 16.51, 0)),
    Part.LineSegment(Vector(-38.1, 16.51, 0), Vector(38.1, 16.51, 0)),
], False)
sketch16.addConstraint([
    Sketcher.Constraint("Coincident", 0, 2, 1, 1),
    Sketcher.Constraint("Coincident", 1, 2, 2, 1),
    Sketcher.Constraint("Coincident", 2, 2, 3, 1),
    Sketcher.Constraint("Coincident", 3, 2, 0, 1),
    Sketcher.Constraint("Vertical", 0),
    Sketcher.Constraint("Horizontal", 1),
    Sketcher.Constraint("Vertical", 2),
    Sketcher.Constraint("Horizontal", 3),
    Sketcher.Constraint("DistanceX", 1, 2, 1, 1, Q("3 in")),
    Sketcher.Constraint("DistanceY", 0, 2, 0, 1, Q("0.55 in")),
    Sketcher.Constraint("DistanceX", -1, 1, 0, 2, Q("1.5 in")),
    Sketcher.Constraint("DistanceY", -1, 1, 0, 2, Q("0.1 in")),
])
sketch16.setExpression("Constraints[8]", "Params.sketch16_width")
sketch16.setExpression("Constraints[9]", "Params.sketch16_height")
pocket12 = doc.addObject("PartDesign::Pocket", "Pocket011")
body.addObject(pocket12)
pocket12.Profile = sketch16
pocket12.setExpression("Length", "Params.pocket12_length")
pocket12.Reversed = True

doc.recompute()
